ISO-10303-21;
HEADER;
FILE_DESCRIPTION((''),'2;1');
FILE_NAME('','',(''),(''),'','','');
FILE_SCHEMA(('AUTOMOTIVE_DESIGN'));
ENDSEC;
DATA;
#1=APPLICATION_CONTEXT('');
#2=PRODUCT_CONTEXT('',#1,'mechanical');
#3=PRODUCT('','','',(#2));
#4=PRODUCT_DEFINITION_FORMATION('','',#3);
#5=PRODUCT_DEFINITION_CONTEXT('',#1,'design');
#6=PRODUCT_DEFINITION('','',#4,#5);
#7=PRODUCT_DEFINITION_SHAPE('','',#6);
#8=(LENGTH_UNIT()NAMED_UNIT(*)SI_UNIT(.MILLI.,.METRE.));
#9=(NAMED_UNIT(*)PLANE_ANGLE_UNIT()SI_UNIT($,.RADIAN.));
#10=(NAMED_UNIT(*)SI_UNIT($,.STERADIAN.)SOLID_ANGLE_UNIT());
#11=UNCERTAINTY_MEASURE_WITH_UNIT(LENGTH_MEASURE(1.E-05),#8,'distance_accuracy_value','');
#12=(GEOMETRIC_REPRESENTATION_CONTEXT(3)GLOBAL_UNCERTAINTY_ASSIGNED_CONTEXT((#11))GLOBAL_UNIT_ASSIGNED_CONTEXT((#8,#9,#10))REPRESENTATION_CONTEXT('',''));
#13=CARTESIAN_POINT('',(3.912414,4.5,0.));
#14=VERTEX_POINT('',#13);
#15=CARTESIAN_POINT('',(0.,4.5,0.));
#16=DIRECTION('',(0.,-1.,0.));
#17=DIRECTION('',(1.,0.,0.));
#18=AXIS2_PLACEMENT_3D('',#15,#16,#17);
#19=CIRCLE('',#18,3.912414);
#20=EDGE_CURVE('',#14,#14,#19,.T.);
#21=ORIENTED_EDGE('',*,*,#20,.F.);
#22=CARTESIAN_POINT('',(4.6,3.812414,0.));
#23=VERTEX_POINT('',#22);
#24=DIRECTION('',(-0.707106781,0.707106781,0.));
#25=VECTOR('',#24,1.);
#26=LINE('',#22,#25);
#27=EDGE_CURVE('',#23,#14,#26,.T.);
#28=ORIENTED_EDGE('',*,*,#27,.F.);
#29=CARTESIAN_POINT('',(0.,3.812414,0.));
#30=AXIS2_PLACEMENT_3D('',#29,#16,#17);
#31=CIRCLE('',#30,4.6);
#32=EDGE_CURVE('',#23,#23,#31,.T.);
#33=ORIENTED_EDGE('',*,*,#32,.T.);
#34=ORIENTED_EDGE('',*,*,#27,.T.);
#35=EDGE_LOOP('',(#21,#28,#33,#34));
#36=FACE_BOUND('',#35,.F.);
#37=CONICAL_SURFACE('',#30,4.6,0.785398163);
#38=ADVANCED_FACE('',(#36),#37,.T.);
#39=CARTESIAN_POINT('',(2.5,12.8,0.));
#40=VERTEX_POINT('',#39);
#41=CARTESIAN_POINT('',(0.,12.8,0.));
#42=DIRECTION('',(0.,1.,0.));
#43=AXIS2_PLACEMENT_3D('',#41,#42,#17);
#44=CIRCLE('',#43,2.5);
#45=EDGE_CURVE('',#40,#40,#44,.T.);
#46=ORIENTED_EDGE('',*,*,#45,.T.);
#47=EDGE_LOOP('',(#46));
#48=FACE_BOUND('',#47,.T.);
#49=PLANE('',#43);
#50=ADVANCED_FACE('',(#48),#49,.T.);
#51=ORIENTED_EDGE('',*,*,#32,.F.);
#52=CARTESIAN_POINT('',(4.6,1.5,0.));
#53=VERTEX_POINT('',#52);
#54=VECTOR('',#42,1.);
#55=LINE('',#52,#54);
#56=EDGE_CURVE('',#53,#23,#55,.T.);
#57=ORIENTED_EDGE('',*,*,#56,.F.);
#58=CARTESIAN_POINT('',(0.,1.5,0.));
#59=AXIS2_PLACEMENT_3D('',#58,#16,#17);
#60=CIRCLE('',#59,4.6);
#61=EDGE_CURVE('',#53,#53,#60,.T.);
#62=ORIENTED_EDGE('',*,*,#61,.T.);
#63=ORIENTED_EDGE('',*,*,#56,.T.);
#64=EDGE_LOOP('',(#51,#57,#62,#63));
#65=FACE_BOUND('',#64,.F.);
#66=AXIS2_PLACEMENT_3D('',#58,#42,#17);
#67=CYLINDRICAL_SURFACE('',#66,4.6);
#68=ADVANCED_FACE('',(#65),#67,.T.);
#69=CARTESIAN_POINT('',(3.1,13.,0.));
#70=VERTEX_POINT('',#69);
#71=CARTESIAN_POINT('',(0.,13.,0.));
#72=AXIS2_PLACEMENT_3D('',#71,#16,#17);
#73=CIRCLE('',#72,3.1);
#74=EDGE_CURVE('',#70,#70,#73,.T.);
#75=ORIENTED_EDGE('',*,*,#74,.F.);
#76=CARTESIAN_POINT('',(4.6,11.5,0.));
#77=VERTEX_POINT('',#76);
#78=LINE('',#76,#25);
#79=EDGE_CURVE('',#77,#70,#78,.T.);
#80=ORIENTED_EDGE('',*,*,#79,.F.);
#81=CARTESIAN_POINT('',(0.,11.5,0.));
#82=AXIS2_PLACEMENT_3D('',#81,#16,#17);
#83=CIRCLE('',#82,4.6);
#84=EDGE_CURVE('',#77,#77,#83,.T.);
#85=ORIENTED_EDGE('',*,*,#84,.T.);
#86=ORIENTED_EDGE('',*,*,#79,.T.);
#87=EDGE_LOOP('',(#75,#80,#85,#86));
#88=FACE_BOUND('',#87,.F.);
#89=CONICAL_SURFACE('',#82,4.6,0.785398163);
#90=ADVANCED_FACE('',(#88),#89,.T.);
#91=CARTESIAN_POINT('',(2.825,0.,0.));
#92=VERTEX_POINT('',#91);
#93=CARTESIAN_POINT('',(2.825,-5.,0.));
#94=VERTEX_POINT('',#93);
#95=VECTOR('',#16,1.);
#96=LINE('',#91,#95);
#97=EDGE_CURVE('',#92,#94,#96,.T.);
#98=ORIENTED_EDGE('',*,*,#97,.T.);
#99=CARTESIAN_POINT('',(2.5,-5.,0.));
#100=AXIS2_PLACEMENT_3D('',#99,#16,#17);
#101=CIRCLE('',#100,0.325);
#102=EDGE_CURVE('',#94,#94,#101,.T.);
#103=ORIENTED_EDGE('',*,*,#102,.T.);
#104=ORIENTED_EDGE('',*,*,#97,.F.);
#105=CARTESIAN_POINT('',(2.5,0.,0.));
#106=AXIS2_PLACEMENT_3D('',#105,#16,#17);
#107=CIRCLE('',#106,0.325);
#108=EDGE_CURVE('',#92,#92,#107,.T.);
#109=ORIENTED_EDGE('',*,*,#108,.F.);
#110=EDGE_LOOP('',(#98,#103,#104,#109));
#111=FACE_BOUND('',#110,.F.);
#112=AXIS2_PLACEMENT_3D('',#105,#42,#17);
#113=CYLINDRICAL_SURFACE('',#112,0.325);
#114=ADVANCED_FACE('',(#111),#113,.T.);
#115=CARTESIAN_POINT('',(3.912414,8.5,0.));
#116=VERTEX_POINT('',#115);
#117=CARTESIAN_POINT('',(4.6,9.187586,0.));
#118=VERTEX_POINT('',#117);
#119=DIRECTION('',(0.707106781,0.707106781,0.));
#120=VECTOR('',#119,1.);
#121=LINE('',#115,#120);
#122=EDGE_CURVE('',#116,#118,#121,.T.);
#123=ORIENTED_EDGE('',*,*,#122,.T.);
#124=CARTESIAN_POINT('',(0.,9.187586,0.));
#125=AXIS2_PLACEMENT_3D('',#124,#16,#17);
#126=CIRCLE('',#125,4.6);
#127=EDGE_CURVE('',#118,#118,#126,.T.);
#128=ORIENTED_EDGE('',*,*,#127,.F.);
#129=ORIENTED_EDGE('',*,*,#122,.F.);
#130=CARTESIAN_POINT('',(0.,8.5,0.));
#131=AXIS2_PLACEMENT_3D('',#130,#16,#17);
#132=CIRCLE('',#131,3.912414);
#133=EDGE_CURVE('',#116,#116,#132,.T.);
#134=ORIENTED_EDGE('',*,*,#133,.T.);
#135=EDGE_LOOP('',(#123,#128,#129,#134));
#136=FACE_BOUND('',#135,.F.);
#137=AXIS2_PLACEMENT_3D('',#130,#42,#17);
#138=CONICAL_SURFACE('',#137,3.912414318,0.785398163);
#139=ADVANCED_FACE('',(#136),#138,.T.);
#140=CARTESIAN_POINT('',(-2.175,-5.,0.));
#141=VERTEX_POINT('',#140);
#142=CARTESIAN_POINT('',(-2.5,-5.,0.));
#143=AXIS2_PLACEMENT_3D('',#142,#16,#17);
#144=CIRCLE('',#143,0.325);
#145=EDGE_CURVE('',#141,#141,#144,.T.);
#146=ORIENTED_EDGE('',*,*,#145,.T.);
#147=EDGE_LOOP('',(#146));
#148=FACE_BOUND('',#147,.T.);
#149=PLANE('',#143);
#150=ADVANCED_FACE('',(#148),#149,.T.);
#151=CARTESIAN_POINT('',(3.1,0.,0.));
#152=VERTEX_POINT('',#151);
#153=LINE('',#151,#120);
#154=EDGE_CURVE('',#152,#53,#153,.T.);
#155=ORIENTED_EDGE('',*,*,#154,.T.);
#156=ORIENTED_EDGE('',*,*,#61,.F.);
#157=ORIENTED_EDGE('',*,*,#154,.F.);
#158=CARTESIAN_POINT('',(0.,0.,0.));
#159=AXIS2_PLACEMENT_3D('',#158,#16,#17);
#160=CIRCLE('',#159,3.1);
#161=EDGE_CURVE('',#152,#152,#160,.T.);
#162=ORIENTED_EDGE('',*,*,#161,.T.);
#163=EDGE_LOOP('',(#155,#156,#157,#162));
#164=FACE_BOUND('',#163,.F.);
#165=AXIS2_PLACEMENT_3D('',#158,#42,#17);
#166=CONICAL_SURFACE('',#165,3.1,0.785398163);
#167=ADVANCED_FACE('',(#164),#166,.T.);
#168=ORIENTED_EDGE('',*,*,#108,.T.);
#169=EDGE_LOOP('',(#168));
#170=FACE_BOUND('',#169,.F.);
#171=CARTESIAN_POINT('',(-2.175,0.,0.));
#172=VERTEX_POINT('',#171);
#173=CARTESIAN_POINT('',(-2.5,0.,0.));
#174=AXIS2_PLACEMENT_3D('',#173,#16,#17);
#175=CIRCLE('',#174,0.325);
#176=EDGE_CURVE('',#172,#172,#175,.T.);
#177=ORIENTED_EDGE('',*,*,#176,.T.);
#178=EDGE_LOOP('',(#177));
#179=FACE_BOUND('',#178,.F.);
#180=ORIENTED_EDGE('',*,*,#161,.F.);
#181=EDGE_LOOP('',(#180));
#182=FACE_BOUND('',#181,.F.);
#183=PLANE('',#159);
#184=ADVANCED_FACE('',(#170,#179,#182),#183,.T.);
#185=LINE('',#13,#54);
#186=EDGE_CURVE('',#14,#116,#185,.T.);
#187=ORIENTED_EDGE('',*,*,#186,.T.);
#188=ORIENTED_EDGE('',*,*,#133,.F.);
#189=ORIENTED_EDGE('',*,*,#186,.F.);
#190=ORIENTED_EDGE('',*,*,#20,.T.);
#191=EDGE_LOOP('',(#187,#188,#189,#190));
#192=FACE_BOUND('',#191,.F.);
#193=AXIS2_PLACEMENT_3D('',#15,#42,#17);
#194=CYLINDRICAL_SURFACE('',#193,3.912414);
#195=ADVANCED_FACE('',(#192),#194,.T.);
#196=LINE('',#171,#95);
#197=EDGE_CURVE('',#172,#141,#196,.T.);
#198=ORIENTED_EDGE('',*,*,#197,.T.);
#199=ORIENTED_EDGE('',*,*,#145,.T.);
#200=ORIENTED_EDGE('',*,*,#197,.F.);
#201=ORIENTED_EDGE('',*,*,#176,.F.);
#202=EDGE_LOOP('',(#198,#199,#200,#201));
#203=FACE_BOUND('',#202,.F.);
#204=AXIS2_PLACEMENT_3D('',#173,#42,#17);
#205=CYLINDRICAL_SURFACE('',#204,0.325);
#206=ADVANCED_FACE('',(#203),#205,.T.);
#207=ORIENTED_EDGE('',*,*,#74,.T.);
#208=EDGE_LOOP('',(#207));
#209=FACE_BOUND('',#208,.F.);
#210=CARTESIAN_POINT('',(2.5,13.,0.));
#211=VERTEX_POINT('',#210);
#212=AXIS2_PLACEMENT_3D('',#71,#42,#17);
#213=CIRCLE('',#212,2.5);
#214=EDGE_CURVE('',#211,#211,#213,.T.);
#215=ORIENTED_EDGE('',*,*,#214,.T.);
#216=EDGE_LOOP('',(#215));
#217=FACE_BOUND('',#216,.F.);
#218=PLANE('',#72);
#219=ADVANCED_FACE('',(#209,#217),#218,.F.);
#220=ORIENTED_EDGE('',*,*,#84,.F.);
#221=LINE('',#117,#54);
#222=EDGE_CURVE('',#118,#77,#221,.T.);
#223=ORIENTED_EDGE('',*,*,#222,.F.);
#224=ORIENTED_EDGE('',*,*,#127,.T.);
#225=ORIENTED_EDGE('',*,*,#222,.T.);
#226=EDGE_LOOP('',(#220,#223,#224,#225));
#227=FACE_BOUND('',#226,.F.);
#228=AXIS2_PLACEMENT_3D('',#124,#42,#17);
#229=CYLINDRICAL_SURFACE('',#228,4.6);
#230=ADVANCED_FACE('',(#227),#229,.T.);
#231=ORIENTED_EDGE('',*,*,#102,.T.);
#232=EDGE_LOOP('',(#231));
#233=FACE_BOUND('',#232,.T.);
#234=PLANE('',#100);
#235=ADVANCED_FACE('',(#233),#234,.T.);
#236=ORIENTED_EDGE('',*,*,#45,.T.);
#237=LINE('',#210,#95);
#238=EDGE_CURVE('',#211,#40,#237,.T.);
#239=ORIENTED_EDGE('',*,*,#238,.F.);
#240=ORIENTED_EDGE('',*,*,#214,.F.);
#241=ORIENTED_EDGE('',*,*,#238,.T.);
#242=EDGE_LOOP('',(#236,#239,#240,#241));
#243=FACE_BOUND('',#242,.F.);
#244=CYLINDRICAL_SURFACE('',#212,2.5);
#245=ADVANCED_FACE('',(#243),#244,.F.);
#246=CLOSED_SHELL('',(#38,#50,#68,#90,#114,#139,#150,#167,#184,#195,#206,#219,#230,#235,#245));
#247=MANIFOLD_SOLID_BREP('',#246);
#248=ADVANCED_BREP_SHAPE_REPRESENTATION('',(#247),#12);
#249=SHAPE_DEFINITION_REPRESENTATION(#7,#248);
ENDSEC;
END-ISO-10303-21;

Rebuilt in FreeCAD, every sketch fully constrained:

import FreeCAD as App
import Part
import Sketcher
from FreeCAD import Vector


def add_polygon(sketch, points):
    """Adds a closed chain of lines whose ends are joined by coincident constraints."""
    first, n = sketch.GeometryCount, len(points)
    for a, b in zip(points, points[1:] + points[:1]):
        sketch.addGeometry(Part.LineSegment(App.Vector(*a, 0), App.Vector(*b, 0)), False)
    for i in range(n):
        sketch.addConstraint(Sketcher.Constraint("Coincident", first + i, 2, first + (i + 1) % n, 1))

doc = App.newDocument("Part")
body = doc.addObject("PartDesign::Body", "Body")

sketch1 = body.newObject("Sketcher::SketchObject", "Sketch")
sketch1.AttachmentSupport = (doc.getObject("XY_Plane"), [""])
sketch1.MapMode = "FlatFace"
add_polygon(sketch1, [(0, 13), (0, 0), (3.1, 0), (4.6, 1.5), (4.6, 3.812414), (3.912414, 4.5), (3.912414, 8.5), (4.6, 9.187586), (4.6, 11.5), (3.1, 13)])
sketch1.addConstraint([
    Sketcher.Constraint("Vertical", 0),
    Sketcher.Constraint("Horizontal", 1),
    Sketcher.Constraint("Vertical", 3),
    Sketcher.Constraint("Vertical", 5),
    Sketcher.Constraint("Vertical", 7),
    Sketcher.Constraint("Horizontal", 9),
    Sketcher.Constraint("Coincident", 0, 2, -1, 1),
    Sketcher.Constraint("Perpendicular", 2, 4),
    Sketcher.Constraint("Perpendicular", 4, 6),
    Sketcher.Constraint("Perpendicular", 6, 8),
    Sketcher.Constraint("Vertical", 3, 2, 6, 2),
    Sketcher.Constraint("Vertical", 1, 2, 8, 2),
    Sketcher.Constraint("Equal", 3, 7),
    Sketcher.Constraint("Equal", 4, 6),
    Sketcher.Constraint("DistanceY", 0, 2, 0, 1, 13.0),
    Sketcher.Constraint("DistanceY", 5, 1, 5, 2, 4.0),
    Sketcher.Constraint("DistanceX", 1, 1, 1, 2, 3.1),
    Sketcher.Constraint("DistanceY", 2, 2, 4, 2, 3.0),
    Sketcher.Constraint("DistanceY", 3, 1, 3, 2, 2.312414),
])
revolution = body.newObject("PartDesign::Revolution", "Revolution")
revolution.Profile = sketch1
revolution.ReferenceAxis = (sketch1, ["V_Axis"])
revolution.Angle = 360

sketch2 = body.newObject("Sketcher::SketchObject", "Sketch001")
sketch2.AttachmentSupport = (doc.getObject("XZ_Plane"), [""])
sketch2.MapMode = "FlatFace"
sketch2.addGeometry([
    Part.Circle(Vector(2.5, 0, 0), Vector(0, 0, 1), 0.325),
    Part.Circle(Vector(-2.5, 0, 0), Vector(0, 0, 1), 0.325),
], False)
sketch2.addConstraint([
    Sketcher.Constraint("Equal", 0, 1),
    Sketcher.Constraint("Symmetric", 0, 3, 1, 3, -1, 1),
    Sketcher.Constraint("PointOnObject", 0, 3, -1),
    Sketcher.Constraint("Diameter", 0, 0.65),
    Sketcher.Constraint("DistanceX", 1, 3, 0, 3, 5.0),
])
pad1 = body.newObject("PartDesign::Pad", "Pad")
pad1.Profile = sketch2
pad1.Length = 5

sketch3 = body.newObject("Sketcher::SketchObject", "Sketch002")
sketch3.AttachmentSupport = (doc.getObject("XZ_Plane"), [""])
sketch3.MapMode = "FlatFace"
sketch3.AttachmentOffset = App.Placement(Vector(0, 0, -13), App.Rotation())
sketch3.addGeometry(Part.Circle(Vector(0, 0, 0), Vector(0, 0, 1), 2.5), False)
sketch3.addConstraint([
    Sketcher.Constraint("Coincident", 0, 3, -1, 1),
    Sketcher.Constraint("Diameter", 0, 5.0),
])
pocket1 = body.newObject("PartDesign::Pocket", "Pocket")
pocket1.Profile = sketch3
pocket1.Length = 0.2
pocket1.Reversed = True

doc.recompute()
